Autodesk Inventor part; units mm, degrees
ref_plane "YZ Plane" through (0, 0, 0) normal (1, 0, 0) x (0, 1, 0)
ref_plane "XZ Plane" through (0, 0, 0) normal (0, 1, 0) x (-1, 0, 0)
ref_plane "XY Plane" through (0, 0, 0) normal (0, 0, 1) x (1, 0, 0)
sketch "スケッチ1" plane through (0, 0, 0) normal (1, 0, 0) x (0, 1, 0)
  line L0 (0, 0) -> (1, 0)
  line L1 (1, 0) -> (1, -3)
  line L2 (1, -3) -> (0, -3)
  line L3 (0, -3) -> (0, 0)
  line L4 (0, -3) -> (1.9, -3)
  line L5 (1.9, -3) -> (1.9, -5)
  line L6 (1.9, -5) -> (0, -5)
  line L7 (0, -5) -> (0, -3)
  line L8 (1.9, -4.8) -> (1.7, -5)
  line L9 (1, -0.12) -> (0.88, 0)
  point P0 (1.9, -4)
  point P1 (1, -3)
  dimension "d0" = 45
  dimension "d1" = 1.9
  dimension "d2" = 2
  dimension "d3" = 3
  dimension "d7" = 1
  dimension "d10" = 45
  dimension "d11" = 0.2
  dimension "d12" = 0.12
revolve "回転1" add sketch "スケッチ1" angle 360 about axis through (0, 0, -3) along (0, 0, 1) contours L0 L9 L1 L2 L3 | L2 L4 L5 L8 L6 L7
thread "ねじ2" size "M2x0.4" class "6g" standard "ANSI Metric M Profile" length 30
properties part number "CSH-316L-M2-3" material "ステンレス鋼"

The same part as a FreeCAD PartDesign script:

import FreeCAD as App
import Part
import Sketcher
from FreeCAD import Vector
Q = App.Units.Quantity


def add_polygon(sketch, points):
    """Adds a closed chain of lines whose ends are joined by coincident constraints."""
    first, n = sketch.GeometryCount, len(points)
    for a, b in zip(points, points[1:] + points[:1]):
        sketch.addGeometry(Part.LineSegment(App.Vector(*a, 0), App.Vector(*b, 0)), False)
    for i in range(n):
        sketch.addConstraint(Sketcher.Constraint("Coincident", first + i, 2, first + (i + 1) % n, 1))

doc = App.newDocument("Part")
body = doc.addObject("PartDesign::Body", "Body")

# Sketch on YZ plane
sketch1 = body.newObject("Sketcher::SketchObject", "Sketch")
sketch1.AttachmentSupport = (doc.getObject("YZ_Plane"), [""])
sketch1.MapMode = "FlatFace"
add_polygon(sketch1, [(0.88, 0), (0, 0), (0, -5), (1.7, -5), (1.9, -4.8), (1.9, -3), (1, -3), (1, -0.12)])  # lines 0-7
sketch1.addConstraint([
    Sketcher.Constraint("Horizontal", 0),
    Sketcher.Constraint("Vertical", 1),
    Sketcher.Constraint("Horizontal", 2),
    Sketcher.Constraint("Vertical", 4),
    Sketcher.Constraint("Horizontal", 5),
    Sketcher.Constraint("Vertical", 6),
    Sketcher.Constraint("Coincident", 0, 2, -1, 1),
    Sketcher.Constraint("Perpendicular", 3, 7),
    Sketcher.Constraint("Angle", 3, Q("45 deg")),
    Sketcher.Constraint("DistanceY", 4, 2, -1, 1, Q("3 mm")),
    Sketcher.Constraint("DistanceX", -1, 1, 5, 2, Q("1 mm")),
    Sketcher.Constraint("DistanceY", 2, 2, 4, 2, Q("2 mm")),
    Sketcher.Constraint("DistanceX", -1, 1, 3, 2, Q("1.9 mm")),
    Sketcher.Constraint("DistanceX", 2, 2, 3, 2, Q("0.2 mm")),
    Sketcher.Constraint("DistanceY", 6, 2, -1, 1, Q("0.12 mm")),
])
revolution = body.newObject("PartDesign::Revolution", "Revolution")
revolution.Profile = sketch1
revolution.ReferenceAxis = (sketch1, ["V_Axis"])
revolution.Angle = 360

doc.recompute()
